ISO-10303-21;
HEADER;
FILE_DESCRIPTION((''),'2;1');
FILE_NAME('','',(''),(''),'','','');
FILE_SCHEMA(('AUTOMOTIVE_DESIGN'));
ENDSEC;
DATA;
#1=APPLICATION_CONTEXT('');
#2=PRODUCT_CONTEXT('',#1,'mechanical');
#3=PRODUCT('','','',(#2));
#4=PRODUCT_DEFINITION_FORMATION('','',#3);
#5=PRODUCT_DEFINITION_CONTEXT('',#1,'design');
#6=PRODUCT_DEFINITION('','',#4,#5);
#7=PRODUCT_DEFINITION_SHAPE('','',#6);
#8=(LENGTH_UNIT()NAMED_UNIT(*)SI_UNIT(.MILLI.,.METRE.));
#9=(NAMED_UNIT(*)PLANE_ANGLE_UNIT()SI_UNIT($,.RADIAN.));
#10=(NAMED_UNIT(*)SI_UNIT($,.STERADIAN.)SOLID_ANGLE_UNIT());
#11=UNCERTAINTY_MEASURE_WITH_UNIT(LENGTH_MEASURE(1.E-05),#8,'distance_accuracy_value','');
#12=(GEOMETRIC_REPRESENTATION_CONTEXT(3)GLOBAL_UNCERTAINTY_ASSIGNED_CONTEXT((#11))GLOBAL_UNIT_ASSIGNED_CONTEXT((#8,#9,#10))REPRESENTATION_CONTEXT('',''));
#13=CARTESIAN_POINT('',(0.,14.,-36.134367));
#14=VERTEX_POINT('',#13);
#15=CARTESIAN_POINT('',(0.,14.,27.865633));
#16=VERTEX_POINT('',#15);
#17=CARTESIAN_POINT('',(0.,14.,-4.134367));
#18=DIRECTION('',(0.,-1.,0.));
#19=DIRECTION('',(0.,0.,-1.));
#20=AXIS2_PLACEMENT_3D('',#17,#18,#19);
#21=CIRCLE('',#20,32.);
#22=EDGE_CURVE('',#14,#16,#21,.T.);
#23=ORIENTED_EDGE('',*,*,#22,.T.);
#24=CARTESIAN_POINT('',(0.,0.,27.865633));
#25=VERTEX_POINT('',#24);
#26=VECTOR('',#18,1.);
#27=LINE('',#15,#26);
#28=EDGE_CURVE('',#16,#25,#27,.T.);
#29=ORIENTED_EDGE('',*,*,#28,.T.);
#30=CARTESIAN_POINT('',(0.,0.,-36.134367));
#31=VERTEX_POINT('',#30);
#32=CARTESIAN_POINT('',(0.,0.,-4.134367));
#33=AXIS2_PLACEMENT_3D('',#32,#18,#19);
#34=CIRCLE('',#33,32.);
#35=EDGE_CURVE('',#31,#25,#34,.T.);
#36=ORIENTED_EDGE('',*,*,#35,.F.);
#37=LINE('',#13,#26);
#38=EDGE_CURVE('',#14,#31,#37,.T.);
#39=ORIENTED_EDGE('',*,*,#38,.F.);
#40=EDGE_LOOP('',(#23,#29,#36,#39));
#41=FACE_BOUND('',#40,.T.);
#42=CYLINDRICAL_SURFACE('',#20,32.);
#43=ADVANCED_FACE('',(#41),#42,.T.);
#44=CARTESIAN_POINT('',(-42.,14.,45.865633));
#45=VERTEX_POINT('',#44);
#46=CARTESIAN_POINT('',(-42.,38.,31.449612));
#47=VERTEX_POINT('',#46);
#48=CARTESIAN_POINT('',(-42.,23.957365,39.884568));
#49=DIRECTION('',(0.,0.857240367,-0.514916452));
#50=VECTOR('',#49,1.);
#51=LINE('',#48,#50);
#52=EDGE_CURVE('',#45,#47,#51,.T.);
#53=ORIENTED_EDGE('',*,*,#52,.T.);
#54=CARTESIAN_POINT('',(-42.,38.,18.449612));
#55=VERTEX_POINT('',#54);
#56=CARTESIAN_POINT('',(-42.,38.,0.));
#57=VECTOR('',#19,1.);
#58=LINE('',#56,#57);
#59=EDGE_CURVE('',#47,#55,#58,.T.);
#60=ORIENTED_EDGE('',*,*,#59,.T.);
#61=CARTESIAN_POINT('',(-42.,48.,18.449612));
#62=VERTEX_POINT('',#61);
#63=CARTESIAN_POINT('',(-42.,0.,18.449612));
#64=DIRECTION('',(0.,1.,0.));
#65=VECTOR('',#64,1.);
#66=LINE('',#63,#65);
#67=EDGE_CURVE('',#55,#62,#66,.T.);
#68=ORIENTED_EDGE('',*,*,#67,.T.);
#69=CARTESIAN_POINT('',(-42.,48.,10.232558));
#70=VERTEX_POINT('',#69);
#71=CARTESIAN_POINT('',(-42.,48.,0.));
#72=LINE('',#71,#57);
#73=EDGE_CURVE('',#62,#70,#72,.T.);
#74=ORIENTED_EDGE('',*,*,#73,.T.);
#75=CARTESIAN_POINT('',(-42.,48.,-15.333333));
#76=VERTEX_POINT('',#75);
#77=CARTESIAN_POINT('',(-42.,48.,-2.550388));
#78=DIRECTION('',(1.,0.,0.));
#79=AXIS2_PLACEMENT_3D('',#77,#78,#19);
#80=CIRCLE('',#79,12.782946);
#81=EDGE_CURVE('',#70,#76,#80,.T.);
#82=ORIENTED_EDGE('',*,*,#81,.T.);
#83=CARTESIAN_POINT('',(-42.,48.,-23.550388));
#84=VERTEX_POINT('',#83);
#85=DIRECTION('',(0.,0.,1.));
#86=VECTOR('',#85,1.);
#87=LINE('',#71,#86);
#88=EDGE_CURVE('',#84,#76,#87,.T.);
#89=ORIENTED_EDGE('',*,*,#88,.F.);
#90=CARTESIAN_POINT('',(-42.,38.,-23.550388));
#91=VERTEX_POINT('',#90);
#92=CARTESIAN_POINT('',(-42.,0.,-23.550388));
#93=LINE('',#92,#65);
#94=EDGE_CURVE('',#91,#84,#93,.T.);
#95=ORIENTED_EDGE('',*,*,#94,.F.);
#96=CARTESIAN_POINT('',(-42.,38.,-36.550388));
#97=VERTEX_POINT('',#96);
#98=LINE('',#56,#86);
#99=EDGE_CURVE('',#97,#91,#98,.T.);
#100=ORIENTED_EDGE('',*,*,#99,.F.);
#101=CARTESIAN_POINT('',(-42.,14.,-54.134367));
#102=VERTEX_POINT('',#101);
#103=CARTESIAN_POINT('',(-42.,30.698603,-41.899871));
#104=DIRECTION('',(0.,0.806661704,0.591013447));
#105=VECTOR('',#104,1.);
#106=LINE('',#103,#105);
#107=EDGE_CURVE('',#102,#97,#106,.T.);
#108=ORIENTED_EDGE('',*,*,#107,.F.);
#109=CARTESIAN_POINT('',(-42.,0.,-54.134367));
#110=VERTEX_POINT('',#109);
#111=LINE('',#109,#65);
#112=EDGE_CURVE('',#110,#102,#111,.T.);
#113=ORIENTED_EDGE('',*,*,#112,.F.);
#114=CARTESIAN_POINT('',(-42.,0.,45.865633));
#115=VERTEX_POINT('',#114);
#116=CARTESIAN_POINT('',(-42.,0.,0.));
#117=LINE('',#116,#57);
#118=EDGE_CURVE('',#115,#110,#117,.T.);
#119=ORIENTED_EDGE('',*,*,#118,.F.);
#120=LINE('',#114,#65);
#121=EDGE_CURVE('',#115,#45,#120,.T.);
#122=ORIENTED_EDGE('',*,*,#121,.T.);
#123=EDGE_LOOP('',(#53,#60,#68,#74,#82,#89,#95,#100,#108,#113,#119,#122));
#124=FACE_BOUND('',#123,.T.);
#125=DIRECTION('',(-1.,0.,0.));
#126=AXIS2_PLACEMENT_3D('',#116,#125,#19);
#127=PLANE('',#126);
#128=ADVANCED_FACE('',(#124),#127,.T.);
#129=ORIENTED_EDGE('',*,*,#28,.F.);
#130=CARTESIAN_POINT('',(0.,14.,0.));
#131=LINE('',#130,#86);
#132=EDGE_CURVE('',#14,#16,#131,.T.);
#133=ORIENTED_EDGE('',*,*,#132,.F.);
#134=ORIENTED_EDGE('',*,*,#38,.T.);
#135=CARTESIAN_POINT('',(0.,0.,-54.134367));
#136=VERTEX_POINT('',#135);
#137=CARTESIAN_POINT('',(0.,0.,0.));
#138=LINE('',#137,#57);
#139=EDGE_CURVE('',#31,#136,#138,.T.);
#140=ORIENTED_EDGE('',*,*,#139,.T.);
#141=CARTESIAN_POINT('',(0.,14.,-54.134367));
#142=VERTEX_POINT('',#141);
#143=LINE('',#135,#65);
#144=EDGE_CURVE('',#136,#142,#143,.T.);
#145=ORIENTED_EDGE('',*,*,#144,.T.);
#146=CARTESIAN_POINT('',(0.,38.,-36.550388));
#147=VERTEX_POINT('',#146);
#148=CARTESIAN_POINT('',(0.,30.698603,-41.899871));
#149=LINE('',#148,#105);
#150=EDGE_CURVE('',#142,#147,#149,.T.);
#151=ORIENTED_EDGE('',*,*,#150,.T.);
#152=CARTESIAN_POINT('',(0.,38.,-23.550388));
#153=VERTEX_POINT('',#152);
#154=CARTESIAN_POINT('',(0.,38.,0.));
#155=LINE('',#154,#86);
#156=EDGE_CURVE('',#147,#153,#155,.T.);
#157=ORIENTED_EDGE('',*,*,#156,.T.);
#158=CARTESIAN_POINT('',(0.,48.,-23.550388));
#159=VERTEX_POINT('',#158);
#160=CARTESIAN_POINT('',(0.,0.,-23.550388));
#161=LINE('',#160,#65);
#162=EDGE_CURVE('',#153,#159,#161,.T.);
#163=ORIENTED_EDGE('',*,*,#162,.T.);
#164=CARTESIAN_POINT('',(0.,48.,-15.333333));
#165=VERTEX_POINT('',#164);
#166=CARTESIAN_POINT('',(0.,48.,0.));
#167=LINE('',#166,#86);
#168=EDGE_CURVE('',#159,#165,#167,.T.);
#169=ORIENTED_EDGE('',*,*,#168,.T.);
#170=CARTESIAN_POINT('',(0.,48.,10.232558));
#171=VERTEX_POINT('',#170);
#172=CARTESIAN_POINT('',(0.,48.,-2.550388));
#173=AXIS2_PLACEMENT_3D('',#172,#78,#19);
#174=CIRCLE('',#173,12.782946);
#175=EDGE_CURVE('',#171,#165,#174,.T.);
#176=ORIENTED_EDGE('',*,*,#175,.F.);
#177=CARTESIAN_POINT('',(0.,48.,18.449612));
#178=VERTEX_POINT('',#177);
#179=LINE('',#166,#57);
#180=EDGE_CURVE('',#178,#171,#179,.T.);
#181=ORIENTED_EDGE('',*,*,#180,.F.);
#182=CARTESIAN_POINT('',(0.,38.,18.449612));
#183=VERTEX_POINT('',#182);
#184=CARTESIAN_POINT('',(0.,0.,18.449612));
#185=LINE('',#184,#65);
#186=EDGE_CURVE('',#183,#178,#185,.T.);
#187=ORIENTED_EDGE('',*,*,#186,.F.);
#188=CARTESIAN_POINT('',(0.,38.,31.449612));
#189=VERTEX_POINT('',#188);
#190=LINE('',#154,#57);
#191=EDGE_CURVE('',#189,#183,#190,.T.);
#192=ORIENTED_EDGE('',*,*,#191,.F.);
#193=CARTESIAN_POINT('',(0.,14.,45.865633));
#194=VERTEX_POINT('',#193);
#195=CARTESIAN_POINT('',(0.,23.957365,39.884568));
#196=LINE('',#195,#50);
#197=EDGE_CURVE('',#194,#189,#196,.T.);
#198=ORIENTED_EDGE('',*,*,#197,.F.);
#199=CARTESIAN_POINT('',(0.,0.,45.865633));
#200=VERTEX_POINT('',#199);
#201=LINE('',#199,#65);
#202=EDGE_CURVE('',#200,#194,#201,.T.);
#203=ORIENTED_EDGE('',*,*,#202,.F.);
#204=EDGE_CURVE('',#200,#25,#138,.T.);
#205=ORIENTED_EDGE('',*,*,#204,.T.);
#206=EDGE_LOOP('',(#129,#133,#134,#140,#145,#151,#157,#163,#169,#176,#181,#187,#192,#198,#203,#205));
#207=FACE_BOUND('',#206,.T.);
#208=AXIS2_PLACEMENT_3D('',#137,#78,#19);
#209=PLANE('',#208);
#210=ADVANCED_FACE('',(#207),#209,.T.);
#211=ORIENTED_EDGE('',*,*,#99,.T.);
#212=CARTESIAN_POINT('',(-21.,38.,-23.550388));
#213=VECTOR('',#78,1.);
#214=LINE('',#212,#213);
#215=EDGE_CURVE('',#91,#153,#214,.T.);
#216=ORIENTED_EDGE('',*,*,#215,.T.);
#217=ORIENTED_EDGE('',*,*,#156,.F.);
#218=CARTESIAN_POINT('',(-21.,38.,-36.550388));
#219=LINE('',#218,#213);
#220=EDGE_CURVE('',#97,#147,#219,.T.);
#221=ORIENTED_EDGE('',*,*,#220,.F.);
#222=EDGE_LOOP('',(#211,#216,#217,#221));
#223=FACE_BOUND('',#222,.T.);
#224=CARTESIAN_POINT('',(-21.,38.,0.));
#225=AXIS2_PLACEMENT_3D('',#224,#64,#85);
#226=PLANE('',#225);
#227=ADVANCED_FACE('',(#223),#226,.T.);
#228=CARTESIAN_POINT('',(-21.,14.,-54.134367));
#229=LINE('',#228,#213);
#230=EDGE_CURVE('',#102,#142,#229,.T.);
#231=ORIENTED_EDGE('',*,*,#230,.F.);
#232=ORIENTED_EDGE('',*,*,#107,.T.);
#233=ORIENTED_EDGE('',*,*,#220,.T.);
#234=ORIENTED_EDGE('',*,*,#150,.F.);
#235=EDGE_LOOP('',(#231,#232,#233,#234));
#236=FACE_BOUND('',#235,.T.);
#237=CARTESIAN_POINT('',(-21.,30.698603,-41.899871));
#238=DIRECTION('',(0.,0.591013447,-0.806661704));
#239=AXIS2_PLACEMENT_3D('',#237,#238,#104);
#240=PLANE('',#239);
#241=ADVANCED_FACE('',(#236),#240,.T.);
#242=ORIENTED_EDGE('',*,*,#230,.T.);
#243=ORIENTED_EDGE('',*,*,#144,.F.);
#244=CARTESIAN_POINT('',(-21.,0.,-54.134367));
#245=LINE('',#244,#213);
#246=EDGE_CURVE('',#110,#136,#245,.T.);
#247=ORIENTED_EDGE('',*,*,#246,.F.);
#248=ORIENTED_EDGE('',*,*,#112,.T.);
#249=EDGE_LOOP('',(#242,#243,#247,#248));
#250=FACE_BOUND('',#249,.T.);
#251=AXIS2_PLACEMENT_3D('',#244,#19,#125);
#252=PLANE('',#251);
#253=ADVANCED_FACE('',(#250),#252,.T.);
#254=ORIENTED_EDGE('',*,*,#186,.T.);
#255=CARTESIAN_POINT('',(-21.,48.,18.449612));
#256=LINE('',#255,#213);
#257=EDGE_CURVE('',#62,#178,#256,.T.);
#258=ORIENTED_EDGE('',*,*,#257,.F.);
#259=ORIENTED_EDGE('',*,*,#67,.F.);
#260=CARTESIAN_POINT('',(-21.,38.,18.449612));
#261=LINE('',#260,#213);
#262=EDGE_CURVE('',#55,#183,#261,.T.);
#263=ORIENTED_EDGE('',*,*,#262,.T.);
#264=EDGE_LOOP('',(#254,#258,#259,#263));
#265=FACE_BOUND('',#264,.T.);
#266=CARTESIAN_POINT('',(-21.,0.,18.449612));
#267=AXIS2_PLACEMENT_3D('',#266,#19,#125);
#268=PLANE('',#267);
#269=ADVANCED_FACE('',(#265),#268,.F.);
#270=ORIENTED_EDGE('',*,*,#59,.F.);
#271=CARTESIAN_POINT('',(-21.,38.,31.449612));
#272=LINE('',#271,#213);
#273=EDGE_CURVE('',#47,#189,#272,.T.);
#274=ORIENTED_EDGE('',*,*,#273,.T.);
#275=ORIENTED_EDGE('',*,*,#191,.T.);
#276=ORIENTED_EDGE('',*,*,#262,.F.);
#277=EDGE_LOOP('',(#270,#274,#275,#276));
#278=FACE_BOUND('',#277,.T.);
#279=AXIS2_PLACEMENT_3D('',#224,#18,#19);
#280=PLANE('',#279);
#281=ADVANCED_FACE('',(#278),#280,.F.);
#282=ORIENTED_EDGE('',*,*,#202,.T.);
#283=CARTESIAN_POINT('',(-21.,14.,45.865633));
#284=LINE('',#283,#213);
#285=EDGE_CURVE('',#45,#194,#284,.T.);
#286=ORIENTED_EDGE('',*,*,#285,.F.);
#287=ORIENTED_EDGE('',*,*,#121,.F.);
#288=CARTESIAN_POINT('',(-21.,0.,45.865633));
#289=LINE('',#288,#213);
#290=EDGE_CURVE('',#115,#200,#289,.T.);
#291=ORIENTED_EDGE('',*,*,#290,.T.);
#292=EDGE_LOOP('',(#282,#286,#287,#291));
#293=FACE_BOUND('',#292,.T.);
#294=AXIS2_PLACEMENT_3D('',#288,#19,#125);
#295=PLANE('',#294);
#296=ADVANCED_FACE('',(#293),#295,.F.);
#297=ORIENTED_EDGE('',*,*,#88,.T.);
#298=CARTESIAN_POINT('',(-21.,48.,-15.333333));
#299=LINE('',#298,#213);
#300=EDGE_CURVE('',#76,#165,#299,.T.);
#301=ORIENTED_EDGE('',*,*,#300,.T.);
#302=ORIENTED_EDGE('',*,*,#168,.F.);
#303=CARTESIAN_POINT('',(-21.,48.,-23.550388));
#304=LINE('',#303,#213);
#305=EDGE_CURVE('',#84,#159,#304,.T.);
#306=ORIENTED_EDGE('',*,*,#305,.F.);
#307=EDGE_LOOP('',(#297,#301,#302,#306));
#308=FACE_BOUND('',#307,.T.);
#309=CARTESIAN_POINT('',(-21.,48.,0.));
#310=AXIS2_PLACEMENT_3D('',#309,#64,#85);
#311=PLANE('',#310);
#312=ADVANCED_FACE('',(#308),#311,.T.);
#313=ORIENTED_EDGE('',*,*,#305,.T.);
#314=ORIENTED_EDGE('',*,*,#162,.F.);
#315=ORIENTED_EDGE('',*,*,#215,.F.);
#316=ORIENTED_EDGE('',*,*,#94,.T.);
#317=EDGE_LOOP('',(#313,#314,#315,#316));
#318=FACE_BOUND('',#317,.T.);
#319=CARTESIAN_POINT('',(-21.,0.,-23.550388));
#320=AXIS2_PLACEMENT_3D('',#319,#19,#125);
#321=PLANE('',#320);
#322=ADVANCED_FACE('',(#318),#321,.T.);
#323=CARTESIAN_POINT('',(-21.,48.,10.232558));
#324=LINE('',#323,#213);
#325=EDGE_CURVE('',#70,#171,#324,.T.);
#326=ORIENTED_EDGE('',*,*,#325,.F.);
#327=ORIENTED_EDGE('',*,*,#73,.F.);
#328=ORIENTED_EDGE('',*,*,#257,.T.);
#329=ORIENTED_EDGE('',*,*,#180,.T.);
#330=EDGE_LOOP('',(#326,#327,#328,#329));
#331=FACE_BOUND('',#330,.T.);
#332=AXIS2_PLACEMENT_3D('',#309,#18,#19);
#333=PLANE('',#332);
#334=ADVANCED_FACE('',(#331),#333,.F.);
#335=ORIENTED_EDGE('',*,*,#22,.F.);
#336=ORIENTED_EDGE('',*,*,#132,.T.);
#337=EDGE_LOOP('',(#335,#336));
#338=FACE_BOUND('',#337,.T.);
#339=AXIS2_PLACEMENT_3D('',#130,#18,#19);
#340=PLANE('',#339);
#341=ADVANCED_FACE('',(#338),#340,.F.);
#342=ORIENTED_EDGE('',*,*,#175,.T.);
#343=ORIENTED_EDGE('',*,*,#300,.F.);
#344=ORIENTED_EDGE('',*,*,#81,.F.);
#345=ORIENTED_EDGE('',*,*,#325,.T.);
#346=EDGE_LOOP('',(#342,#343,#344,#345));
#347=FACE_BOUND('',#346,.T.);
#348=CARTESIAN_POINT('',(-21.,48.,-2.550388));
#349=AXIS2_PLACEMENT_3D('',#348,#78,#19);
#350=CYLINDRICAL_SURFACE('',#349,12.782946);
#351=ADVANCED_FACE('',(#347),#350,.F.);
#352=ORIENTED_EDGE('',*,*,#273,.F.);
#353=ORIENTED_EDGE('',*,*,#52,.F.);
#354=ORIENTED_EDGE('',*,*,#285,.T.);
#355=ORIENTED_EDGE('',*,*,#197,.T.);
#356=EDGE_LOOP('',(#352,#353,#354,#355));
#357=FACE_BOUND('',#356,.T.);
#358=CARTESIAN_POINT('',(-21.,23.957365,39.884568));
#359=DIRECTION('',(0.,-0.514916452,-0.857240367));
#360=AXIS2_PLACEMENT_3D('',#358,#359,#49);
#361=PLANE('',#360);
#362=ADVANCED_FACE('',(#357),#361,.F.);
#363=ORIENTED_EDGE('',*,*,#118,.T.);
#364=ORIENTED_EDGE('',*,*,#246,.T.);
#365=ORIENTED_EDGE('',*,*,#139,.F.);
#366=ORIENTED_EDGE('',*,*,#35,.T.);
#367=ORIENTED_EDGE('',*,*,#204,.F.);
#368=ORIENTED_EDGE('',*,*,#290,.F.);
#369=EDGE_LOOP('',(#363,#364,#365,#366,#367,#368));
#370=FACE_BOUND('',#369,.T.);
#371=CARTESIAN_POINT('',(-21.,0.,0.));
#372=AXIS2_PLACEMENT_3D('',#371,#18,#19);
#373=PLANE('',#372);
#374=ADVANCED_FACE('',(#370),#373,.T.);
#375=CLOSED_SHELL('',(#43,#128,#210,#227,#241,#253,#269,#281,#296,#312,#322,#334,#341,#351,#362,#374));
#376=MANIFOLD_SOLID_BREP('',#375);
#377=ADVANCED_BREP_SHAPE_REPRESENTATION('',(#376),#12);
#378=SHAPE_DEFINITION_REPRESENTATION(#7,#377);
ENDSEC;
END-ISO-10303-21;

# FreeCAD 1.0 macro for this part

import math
import FreeCAD as App
import Part
import Sketcher

V = App.Vector
Q = App.Units.Quantity

doc = App.newDocument("Part")
body = doc.addObject("PartDesign::Body", "Body")

# Sketch on YZ plane
sketch1 = body.newObject("Sketcher::SketchObject", "Sketch")
sketch1.AttachmentSupport = (doc.getObject("YZ_Plane"), [""])
sketch1.MapMode = "FlatFace"
sketch1.addGeometry(Part.LineSegment(V(14, 46, 0), V(0, 46, 0)), False)
sketch1.addGeometry(Part.LineSegment(V(0, 46, 0), V(0, -54, 0)), False)
sketch1.addGeometry(Part.LineSegment(V(0, -54, 0), V(14, -54, 0)), False)
sketch1.addGeometry(Part.LineSegment(V(14, -54, 0), V(38, -37, 0)), False)
sketch1.addGeometry(Part.LineSegment(V(38, -37, 0), V(38, -24, 0)), False)
sketch1.addGeometry(Part.LineSegment(V(38, -24, 0), V(48, -24, 0)), False)
sketch1.addGeometry(Part.LineSegment(V(48, -24, 0), V(48, -15, 0)), False)
sketch1.addGeometry(Part.ArcOfCircle(Part.Circle(V(48, -3, 0), V(0, 0, 1), 13), math.radians(90), math.radians(270)), False)
sketch1.addGeometry(Part.LineSegment(V(48, 10, 0), V(48, 18, 0)), False)
sketch1.addGeometry(Part.LineSegment(V(48, 18, 0), V(38, 18, 0)), False)
sketch1.addGeometry(Part.LineSegment(V(38, 18, 0), V(38, 31, 0)), False)
sketch1.addGeometry(Part.LineSegment(V(38, 31, 0), V(14, 46, 0)), False)
sketch1.addConstraint(Sketcher.Constraint("Coincident", 0, 2, 1, 1))
sketch1.addConstraint(Sketcher.Constraint("Coincident", 1, 2, 2, 1))
sketch1.addConstraint(Sketcher.Constraint("Coincident", 2, 2, 3, 1))
sketch1.addConstraint(Sketcher.Constraint("Coincident", 3, 2, 4, 1))
sketch1.addConstraint(Sketcher.Constraint("Coincident", 4, 2, 5, 1))
sketch1.addConstraint(Sketcher.Constraint("Coincident", 5, 2, 6, 1))
sketch1.addConstraint(Sketcher.Constraint("Coincident", 6, 2, 7, 2))
sketch1.addConstraint(Sketcher.Constraint("Coincident", 7, 1, 8, 1))
sketch1.addConstraint(Sketcher.Constraint("Coincident", 8, 2, 9, 1))
sketch1.addConstraint(Sketcher.Constraint("Coincident", 9, 2, 10, 1))
sketch1.addConstraint(Sketcher.Constraint("Coincident", 10, 2, 11, 1))
sketch1.addConstraint(Sketcher.Constraint("Coincident", 11, 2, 0, 1))
sketch1.addConstraint(Sketcher.Constraint("Horizontal", 0))
sketch1.addConstraint(Sketcher.Constraint("Vertical", 1))
sketch1.addConstraint(Sketcher.Constraint("Horizontal", 2))
sketch1.addConstraint(Sketcher.Constraint("Vertical", 4))
sketch1.addConstraint(Sketcher.Constraint("Horizontal", 5))
sketch1.addConstraint(Sketcher.Constraint("Vertical", 6))
sketch1.addConstraint(Sketcher.Constraint("Vertical", 8))
sketch1.addConstraint(Sketcher.Constraint("Horizontal", 9))
sketch1.addConstraint(Sketcher.Constraint("Vertical", 10))
sketch1.addConstraint(Sketcher.Constraint("PointOnObject", 0, 2, -2))
sketch1.addConstraint(Sketcher.Constraint("Vertical", 7, 3, 5, 2))
sketch1.addConstraint(Sketcher.Constraint("Vertical", 6, 2, 7, 1))
sketch1.addConstraint(Sketcher.Constraint("Vertical", 4, 2, 9, 2))
sketch1.addConstraint(Sketcher.Constraint("Vertical", 2, 2, 11, 2))
sketch1.addConstraint(Sketcher.Constraint("Equal", 6, 8))
sketch1.addConstraint(Sketcher.Constraint("Equal", 4, 10))
sketch1.addConstraint(Sketcher.Constraint("DistanceX", 0, 2, 0, 1, Q("14 mm")))
sketch1.addConstraint(Sketcher.Constraint("DistanceX", 5, 1, 5, 2, Q("10 mm")))
sketch1.addConstraint(Sketcher.Constraint("DistanceY", 1, 2, 1, 1, Q("100 mm")))
sketch1.addConstraint(Sketcher.Constraint("DistanceY", 4, 1, 4, 2, Q("13 mm")))
sketch1.addConstraint(Sketcher.Constraint("DistanceX", -1, 1, 7, 3, Q("48 mm")))
sketch1.addConstraint(Sketcher.Constraint("DistanceY", 3, 2, 7, 3, Q("34 mm")))
sketch1.addConstraint(Sketcher.Constraint("Radius", 7, Q("12.782946 mm")))
sketch1.addConstraint(Sketcher.Constraint("Distance", 3, Q("29.752249 mm")))
sketch1.addConstraint(Sketcher.Constraint("DistanceY", -1, 1, 7, 1, Q("10.232558 mm")))
pad1 = body.newObject("PartDesign::Pad", "Pad")
pad1.Profile = sketch1
pad1.Length = 21
pad1.Reversed = True
body2 = doc.addObject("PartDesign::Body", "Body001")
doc.recompute()

body2.BaseFeature = body
doc.recompute()

mirroring = doc.addObject("Part::Mirroring", "Mirroring")
mirroring.Source = body
mirroring.Base = V(-21, 0, 0)
mirroring.Normal = V(-1, 0, 0)
body3 = doc.addObject("PartDesign::Body", "Body002")
body3.BaseFeature = mirroring
boolean = body2.newObject("PartDesign::Boolean", "Boolean")
boolean.Type = "Fuse"
boolean.addObjects([body3])
doc.recompute()

# Sketch on XZ plane
sketch2 = body2.newObject("Sketcher::SketchObject", "Sketch001")
sketch2.AttachmentSupport = (doc.getObject("XZ_Plane001"), [""])
sketch2.MapMode = "FlatFace"
sketch2.addGeometry(Part.ArcOfCircle(Part.Circle(V(0, -4, 0), V(0, 0, 1), 32), math.radians(-90), math.radians(0)), False)
sketch2.addGeometry(Part.ArcOfCircle(Part.Circle(V(0, -4, 0), V(0, 0, 1), 32), math.radians(0), math.radians(90)), False)
sketch2.addGeometry(Part.ArcOfCircle(Part.Circle(V(0, -4, 0), V(0, 0, 1), 32), math.radians(90), math.radians(270)), False)
sketch2.addConstraint(Sketcher.Constraint("Tangent", 0, 2, 1, 1))
sketch2.addConstraint(Sketcher.Constraint("Tangent", 1, 2, 2, 1))
sketch2.addConstraint(Sketcher.Constraint("Tangent", 2, 2, 0, 1))
sketch2.addConstraint(Sketcher.Constraint("PointOnObject", 0, 3, -2))
sketch2.addConstraint(Sketcher.Constraint("PointOnObject", 1, 2, -2))
sketch2.addConstraint(Sketcher.Constraint("PointOnObject", 2, 2, -2))
sketch2.addConstraint(Sketcher.Constraint("Horizontal", 2, 3, 0, 2))
sketch2.addConstraint(Sketcher.Constraint("Radius", 0, Q("32 mm")))
sketch2.addConstraint(Sketcher.Constraint("DistanceY", 0, 3, -1, 1, Q("4.134367 mm")))
pad2 = body2.newObject("PartDesign::Pad", "Pad001")
pad2.Profile = sketch2
pad2.Length = 14
pad2.Reversed = True
mirroring.Visibility = False

doc.recompute()
